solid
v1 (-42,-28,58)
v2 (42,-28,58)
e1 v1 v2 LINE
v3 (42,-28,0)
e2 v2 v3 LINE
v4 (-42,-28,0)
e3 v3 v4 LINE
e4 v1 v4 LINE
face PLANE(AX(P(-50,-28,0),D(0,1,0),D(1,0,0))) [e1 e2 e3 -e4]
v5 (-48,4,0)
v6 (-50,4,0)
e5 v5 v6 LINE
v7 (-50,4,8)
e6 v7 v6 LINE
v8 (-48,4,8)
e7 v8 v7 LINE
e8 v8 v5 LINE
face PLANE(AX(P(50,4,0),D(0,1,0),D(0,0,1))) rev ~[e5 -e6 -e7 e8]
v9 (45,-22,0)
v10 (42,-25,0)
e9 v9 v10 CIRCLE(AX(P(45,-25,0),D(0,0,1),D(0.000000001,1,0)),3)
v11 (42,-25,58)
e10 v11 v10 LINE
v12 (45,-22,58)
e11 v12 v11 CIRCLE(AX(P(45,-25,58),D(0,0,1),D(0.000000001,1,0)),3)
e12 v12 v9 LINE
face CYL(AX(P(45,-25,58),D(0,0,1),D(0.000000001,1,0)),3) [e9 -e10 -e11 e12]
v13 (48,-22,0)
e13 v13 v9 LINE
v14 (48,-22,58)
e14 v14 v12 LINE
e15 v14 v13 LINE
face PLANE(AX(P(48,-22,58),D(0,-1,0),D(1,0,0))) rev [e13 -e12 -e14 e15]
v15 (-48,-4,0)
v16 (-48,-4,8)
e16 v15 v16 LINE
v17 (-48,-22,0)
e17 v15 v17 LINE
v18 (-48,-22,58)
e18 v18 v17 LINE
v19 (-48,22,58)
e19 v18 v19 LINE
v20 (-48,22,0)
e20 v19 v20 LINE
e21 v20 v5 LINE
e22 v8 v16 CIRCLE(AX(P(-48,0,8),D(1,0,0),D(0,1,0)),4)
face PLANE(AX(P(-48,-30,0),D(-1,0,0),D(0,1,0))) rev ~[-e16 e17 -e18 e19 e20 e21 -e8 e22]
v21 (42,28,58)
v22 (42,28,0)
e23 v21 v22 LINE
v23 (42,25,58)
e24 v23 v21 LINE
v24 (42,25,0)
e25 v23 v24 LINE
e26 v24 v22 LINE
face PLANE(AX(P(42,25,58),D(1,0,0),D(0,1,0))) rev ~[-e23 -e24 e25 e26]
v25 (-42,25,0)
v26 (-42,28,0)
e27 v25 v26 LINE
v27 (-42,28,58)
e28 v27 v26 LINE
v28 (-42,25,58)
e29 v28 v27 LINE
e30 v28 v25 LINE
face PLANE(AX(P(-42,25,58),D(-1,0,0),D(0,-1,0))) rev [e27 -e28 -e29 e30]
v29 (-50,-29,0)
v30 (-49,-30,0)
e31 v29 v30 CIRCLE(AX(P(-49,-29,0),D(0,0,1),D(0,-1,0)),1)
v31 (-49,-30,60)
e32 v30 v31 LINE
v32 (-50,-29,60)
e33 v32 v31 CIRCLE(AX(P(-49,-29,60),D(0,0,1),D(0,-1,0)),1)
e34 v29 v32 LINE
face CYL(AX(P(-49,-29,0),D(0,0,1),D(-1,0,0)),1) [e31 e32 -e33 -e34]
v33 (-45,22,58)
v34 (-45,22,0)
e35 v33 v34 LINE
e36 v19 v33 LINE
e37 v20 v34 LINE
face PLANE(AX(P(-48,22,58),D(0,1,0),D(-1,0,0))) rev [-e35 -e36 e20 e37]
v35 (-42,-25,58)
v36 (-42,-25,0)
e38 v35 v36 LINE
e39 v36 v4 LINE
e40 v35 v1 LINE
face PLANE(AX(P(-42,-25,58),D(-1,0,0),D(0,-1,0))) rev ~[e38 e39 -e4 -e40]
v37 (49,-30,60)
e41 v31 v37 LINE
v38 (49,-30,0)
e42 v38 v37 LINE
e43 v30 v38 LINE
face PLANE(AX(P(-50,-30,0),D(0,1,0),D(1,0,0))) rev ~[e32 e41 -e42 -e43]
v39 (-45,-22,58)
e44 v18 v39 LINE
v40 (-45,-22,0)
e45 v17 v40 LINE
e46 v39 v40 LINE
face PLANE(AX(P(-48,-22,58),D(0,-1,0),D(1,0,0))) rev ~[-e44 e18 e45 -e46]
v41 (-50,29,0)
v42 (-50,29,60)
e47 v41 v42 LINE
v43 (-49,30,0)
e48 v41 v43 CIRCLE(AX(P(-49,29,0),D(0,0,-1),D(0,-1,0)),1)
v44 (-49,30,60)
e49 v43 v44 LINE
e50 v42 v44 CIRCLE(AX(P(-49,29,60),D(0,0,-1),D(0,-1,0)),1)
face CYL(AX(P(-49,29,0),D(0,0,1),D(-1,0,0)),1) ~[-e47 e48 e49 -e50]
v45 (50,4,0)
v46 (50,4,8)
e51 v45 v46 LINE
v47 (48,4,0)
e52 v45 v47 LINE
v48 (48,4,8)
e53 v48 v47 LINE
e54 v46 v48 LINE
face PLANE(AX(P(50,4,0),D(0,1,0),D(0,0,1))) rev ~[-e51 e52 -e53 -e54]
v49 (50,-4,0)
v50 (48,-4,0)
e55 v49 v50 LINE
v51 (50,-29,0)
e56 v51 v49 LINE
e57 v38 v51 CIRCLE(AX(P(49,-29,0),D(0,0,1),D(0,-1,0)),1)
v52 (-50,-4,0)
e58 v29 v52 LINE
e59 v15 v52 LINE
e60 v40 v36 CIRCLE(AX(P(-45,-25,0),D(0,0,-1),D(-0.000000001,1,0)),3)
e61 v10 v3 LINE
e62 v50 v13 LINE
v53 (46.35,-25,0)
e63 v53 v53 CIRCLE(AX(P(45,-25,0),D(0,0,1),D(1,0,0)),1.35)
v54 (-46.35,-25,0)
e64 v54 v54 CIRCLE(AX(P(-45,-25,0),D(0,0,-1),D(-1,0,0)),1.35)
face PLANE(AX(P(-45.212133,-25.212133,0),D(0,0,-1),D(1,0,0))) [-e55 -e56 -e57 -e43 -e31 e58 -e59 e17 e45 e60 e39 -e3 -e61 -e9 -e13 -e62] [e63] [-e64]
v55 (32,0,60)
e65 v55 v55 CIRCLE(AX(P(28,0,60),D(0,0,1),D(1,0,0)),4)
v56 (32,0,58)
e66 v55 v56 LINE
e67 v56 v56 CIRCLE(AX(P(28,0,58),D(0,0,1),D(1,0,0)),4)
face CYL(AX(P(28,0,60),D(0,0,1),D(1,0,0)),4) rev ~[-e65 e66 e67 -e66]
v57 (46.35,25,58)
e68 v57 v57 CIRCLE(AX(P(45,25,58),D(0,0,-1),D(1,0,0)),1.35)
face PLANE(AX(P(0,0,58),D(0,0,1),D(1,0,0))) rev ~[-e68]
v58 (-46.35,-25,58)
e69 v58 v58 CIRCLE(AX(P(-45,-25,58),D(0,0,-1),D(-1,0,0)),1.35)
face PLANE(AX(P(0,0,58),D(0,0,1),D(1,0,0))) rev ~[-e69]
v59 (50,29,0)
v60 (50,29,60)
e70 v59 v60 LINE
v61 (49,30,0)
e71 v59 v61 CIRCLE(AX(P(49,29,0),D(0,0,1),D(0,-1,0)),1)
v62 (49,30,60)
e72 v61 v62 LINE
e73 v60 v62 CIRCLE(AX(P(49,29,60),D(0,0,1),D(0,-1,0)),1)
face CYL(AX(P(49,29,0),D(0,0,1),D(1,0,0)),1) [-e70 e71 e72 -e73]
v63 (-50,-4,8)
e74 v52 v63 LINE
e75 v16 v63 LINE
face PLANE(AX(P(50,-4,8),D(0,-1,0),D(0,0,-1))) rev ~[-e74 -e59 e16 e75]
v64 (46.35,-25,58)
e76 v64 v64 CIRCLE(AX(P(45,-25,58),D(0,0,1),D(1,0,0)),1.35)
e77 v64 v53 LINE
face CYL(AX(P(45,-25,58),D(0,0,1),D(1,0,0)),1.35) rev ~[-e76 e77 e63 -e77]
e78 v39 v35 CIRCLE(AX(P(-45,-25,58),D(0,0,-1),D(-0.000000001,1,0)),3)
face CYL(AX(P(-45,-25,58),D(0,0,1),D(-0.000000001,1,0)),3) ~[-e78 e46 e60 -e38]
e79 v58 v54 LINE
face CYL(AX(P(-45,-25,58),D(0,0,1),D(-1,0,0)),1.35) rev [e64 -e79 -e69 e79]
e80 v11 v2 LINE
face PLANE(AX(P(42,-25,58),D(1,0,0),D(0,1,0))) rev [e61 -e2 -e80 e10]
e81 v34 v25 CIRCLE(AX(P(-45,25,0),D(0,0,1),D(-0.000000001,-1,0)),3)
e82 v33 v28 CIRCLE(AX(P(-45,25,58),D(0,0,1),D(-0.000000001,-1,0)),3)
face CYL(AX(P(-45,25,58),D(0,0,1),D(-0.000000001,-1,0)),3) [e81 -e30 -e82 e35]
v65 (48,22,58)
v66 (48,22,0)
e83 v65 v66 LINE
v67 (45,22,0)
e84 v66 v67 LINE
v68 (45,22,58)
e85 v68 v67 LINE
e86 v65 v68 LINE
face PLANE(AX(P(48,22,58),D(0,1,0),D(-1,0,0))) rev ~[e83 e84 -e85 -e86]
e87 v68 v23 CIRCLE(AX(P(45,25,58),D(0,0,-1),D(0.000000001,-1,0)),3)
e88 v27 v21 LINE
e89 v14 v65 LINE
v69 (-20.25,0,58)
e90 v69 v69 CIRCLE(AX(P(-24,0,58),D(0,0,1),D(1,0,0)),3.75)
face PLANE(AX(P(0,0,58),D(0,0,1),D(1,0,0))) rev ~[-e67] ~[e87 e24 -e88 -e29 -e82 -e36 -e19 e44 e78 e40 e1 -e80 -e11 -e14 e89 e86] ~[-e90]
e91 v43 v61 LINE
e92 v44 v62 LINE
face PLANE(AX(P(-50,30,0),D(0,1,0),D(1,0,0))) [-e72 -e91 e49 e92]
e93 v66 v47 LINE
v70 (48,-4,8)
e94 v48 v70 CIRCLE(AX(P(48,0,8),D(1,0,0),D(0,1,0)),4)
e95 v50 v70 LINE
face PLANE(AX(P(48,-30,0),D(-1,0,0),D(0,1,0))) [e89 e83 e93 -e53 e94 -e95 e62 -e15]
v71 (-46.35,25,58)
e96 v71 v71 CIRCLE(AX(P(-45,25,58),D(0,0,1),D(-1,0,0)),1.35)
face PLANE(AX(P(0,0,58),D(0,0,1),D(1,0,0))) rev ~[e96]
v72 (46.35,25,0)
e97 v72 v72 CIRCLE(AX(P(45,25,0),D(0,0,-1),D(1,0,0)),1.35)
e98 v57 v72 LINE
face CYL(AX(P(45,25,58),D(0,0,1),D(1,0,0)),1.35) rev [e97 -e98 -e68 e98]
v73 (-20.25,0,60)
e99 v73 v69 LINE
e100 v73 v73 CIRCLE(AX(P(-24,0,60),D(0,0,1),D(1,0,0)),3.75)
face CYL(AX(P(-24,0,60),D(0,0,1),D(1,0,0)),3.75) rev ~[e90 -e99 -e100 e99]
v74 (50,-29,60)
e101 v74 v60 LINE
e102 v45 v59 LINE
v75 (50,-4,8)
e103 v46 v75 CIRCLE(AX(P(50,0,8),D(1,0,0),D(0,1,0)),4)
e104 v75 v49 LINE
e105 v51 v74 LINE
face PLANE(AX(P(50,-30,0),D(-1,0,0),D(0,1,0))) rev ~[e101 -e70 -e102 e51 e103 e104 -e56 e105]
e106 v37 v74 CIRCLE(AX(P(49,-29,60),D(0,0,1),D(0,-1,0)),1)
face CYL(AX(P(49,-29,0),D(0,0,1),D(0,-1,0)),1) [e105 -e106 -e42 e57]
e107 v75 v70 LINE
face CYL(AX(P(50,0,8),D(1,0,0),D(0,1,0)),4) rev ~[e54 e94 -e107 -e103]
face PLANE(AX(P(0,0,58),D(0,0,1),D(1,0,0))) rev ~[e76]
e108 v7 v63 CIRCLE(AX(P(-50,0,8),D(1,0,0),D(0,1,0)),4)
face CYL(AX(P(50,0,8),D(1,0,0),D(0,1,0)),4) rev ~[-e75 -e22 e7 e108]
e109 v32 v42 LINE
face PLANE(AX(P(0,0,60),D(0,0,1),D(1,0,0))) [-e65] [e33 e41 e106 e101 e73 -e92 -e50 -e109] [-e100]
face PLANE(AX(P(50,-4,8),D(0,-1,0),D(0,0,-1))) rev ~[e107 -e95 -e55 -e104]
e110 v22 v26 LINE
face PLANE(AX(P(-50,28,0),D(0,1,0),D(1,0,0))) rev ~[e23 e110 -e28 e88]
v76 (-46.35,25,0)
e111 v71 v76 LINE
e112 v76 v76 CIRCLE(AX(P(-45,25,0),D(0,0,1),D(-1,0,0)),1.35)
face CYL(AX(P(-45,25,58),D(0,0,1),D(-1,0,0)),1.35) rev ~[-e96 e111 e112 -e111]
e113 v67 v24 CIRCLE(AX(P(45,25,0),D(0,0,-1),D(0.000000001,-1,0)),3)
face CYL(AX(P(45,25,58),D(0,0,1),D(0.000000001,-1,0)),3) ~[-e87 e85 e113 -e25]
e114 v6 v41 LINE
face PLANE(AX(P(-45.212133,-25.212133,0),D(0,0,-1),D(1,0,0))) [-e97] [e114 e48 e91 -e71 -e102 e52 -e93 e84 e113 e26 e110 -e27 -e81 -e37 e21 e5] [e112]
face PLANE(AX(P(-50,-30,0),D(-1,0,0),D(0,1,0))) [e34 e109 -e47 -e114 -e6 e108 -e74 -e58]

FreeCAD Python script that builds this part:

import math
import FreeCAD as App
import Part
import Sketcher

V = App.Vector
Q = App.Units.Quantity


def edges_at(feature, points):
    """Names of the edges that pass closest to the given points."""
    edges = feature.Shape.Edges
    near = lambda p: min(range(len(edges)), key=lambda i: edges[i].distToShape(Part.Vertex(*p))[0])
    return sorted({f"Edge{near(p) + 1}" for p in points})


def faces_at(feature, points):
    """Names of the faces that lie closest to the given points."""
    faces = feature.Shape.Faces
    near = lambda p: min(range(len(faces)), key=lambda i: faces[i].distToShape(Part.Vertex(*p))[0])
    return sorted({f"Face{near(p) + 1}" for p in points})


def add_polygon(sketch, points):
    """Adds a closed chain of lines whose ends are joined by coincident constraints."""
    first, n = sketch.GeometryCount, len(points)
    for a, b in zip(points, points[1:] + points[:1]):
        sketch.addGeometry(Part.LineSegment(App.Vector(*a, 0), App.Vector(*b, 0)), False)
    for i in range(n):
        sketch.addConstraint(Sketcher.Constraint("Coincident", first + i, 2, first + (i + 1) % n, 1))

doc = App.newDocument("Part")
body = doc.addObject("PartDesign::Body", "Body")

sketch1 = body.newObject("Sketcher::SketchObject", "Sketch")
sketch1.AttachmentSupport = (doc.getObject("XY_Plane"), [""])
sketch1.MapMode = "FlatFace"
add_polygon(sketch1, [(-50, 30), (-50, -30), (50, -30), (50, 30)])
sketch1.addConstraint(Sketcher.Constraint("Vertical", 0))
sketch1.addConstraint(Sketcher.Constraint("Horizontal", 1))
sketch1.addConstraint(Sketcher.Constraint("Vertical", 2))
sketch1.addConstraint(Sketcher.Constraint("Horizontal", 3))
sketch1.addConstraint(Sketcher.Constraint("Symmetric", 0, 2, 2, 2, -1, 1))
sketch1.addConstraint(Sketcher.Constraint("DistanceX", 1, 1, 1, 2, Q("100 mm")))
sketch1.addConstraint(Sketcher.Constraint("DistanceY", 0, 2, 0, 1, Q("60 mm")))
pad1 = body.newObject("PartDesign::Pad", "Pad")
pad1.Profile = sketch1
pad1.Length = 60
doc.recompute()

thickness = body.newObject("PartDesign::Thickness", "Thickness")
thickness.Base = (pad1, faces_at(pad1, [(0, 0, 0)]))
thickness.Value = 2
thickness.Reversed = True
thickness.Join = "Intersection"

sketch2 = body.newObject("Sketcher::SketchObject", "Sketch001")
sketch2.AttachmentSupport = (doc.getObject("XY_Plane"), [""])
sketch2.MapMode = "FlatFace"
sketch2.AttachmentOffset = App.Placement(V(0, 0, 60), App.Rotation())
sketch2.addGeometry(Part.Circle(V(-24, 0, 0), V(0, 0, 1), 3.8), False)
sketch2.addGeometry(Part.Circle(V(28, 0, 0), V(0, 0, 1), 4), False)
sketch2.addConstraint(Sketcher.Constraint("PointOnObject", 0, 3, -1))
sketch2.addConstraint(Sketcher.Constraint("PointOnObject", 1, 3, -1))
sketch2.addConstraint(Sketcher.Constraint("Diameter", 1, Q("8 mm")))
sketch2.addConstraint(Sketcher.Constraint("Diameter", 0, Q("7.5 mm")))
sketch2.addConstraint(Sketcher.Constraint("DistanceX", 0, 3, -1, 1, Q("24 mm")))
sketch2.addConstraint(Sketcher.Constraint("DistanceX", -1, 1, 1, 3, Q("28 mm")))
pocket1 = body.newObject("PartDesign::Pocket", "Pocket")
pocket1.Profile = sketch2
pocket1.Length = 60

sketch3 = body.newObject("Sketcher::SketchObject", "Sketch002")
sketch3.AttachmentSupport = (doc.getObject("XY_Plane"), [""])
sketch3.MapMode = "FlatFace"
sketch3.AttachmentOffset = App.Placement(V(0, 0, 58), App.Rotation())
sketch3.addGeometry(Part.LineSegment(V(42, 25, 0), V(42, 28, 0)), False)
sketch3.addGeometry(Part.LineSegment(V(42, 28, 0), V(48, 28, 0)), False)
sketch3.addGeometry(Part.LineSegment(V(48, 28, 0), V(48, 22, 0)), False)
sketch3.addGeometry(Part.LineSegment(V(48, 22, 0), V(45, 22, 0)), False)
sketch3.addGeometry(Part.ArcOfCircle(Part.Circle(V(45, 25, 0), V(0, 0, 1), 3), math.radians(180), math.radians(270)), False)
sketch3.addGeometry(Part.Circle(V(45, 25, 0), V(0, 0, 1), 1.4), False)
sketch3.addConstraint(Sketcher.Constraint("Coincident", 0, 2, 1, 1))
sketch3.addConstraint(Sketcher.Constraint("Coincident", 1, 2, 2, 1))
sketch3.addConstraint(Sketcher.Constraint("Coincident", 2, 2, 3, 1))
sketch3.addConstraint(Sketcher.Constraint("Tangent", 3, 2, 4, 2))
sketch3.addConstraint(Sketcher.Constraint("Tangent", 4, 1, 0, 1))
sketch3.addConstraint(Sketcher.Constraint("Vertical", 0))
sketch3.addConstraint(Sketcher.Constraint("Horizontal", 1))
sketch3.addConstraint(Sketcher.Constraint("Vertical", 2))
sketch3.addConstraint(Sketcher.Constraint("Horizontal", 3))
sketch3.addConstraint(Sketcher.Constraint("Coincident", 5, 3, 4, 3))
sketch3.addConstraint(Sketcher.Constraint("Equal", 3, 0))
sketch3.addConstraint(Sketcher.Constraint("Radius", 4, Q("3 mm")))
sketch3.addConstraint(Sketcher.Constraint("Diameter", 5, Q("2.7 mm")))
sketch3.addConstraint(Sketcher.Constraint("DistanceX", 1, 1, 1, 2, Q("6 mm")))
sketch3.addConstraint(Sketcher.Constraint("DistanceX", -1, 1, 4, 3, Q("45 mm")))
sketch3.addConstraint(Sketcher.Constraint("DistanceY", -1, 1, 4, 3, Q("25 mm")))
pad2 = body.newObject("PartDesign::Pad", "Pad001")
pad2.Profile = sketch3
pad2.Length = 58
pad2.Reversed = True
doc.recompute()

mirrored = body.newObject("PartDesign::Mirrored", "Mirrored")
mirrored.Originals = [pad2]
mirrored.MirrorPlane = (doc.getObject("YZ_Plane"), [""])
body.Tip = mirrored
doc.recompute()

mirrored2 = body.newObject("PartDesign::Mirrored", "Mirrored001")
mirrored2.Originals = [pad2]
mirrored2.MirrorPlane = (doc.getObject("XZ_Plane"), [""])
body.Tip = mirrored2

sketch4 = body.newObject("Sketcher::SketchObject", "Sketch003")
sketch4.AttachmentSupport = (doc.getObject("XY_Plane"), [""])
sketch4.MapMode = "FlatFace"
sketch4.AttachmentOffset = App.Placement(V(0, 0, 58), App.Rotation())
sketch4.addGeometry(Part.LineSegment(V(-42, -25, 0), V(-42, -28, 0)), False)
sketch4.addGeometry(Part.LineSegment(V(-42, -28, 0), V(-48, -28, 0)), False)
sketch4.addGeometry(Part.LineSegment(V(-48, -28, 0), V(-48, -22, 0)), False)
sketch4.addGeometry(Part.LineSegment(V(-48, -22, 0), V(-45, -22, 0)), False)
sketch4.addGeometry(Part.ArcOfCircle(Part.Circle(V(-45, -25, 0), V(0, 0, 1), 3), math.radians(0), math.radians(90)), False)
sketch4.addGeometry(Part.Circle(V(-45, -25, 0), V(0, 0, 1), 1.4), False)
sketch4.addConstraint(Sketcher.Constraint("Coincident", 0, 2, 1, 1))
sketch4.addConstraint(Sketcher.Constraint("Coincident", 1, 2, 2, 1))
sketch4.addConstraint(Sketcher.Constraint("Coincident", 2, 2, 3, 1))
sketch4.addConstraint(Sketcher.Constraint("Tangent", 3, 2, 4, 2))
sketch4.addConstraint(Sketcher.Constraint("Tangent", 4, 1, 0, 1))
sketch4.addConstraint(Sketcher.Constraint("Vertical", 0))
sketch4.addConstraint(Sketcher.Constraint("Horizontal", 1))
sketch4.addConstraint(Sketcher.Constraint("Vertical", 2))
sketch4.addConstraint(Sketcher.Constraint("Horizontal", 3))
sketch4.addConstraint(Sketcher.Constraint("Coincident", 5, 3, 4, 3))
sketch4.addConstraint(Sketcher.Constraint("Equal", 3, 0))
sketch4.addConstraint(Sketcher.Constraint("Radius", 4, Q("3 mm")))
sketch4.addConstraint(Sketcher.Constraint("Diameter", 5, Q("2.7 mm")))
sketch4.addConstraint(Sketcher.Constraint("DistanceX", 1, 2, 1, 1, Q("6 mm")))
sketch4.addConstraint(Sketcher.Constraint("DistanceX", 4, 3, -1, 1, Q("45 mm")))
sketch4.addConstraint(Sketcher.Constraint("DistanceY", 4, 3, -1, 1, Q("25 mm")))
pad3 = body.newObject("PartDesign::Pad", "Pad002")
pad3.Profile = sketch4
pad3.Length = 58
pad3.Reversed = True
doc.recompute()

fillet = body.newObject("PartDesign::Fillet", "Fillet")
fillet.Base = (pad3, edges_at(pad3, [
    (-50, 30, 30),
    (50, 30, 30),
    (50, -30, 30),
    (-50, -30, 30),
]))
fillet.Radius = 1

sketch5 = body.newObject("Sketcher::SketchObject", "Sketch004")
sketch5.AttachmentSupport = (doc.getObject("YZ_Plane"), [""])
sketch5.MapMode = "FlatFace"
sketch5.AttachmentOffset = App.Placement(V(0, 0, 50), App.Rotation())
sketch5.addGeometry(Part.LineSegment(V(-4, 8, 0), V(-4, 0, 0)), False)
sketch5.addGeometry(Part.LineSegment(V(-4, 0, 0), V(4, 0, 0)), False)
sketch5.addGeometry(Part.LineSegment(V(4, 0, 0), V(4, 8, 0)), False)
sketch5.addGeometry(Part.ArcOfCircle(Part.Circle(V(0, 8, 0), V(0, 0, 1), 4), math.radians(0), math.radians(180)), False)
sketch5.addConstraint(Sketcher.Constraint("Coincident", 0, 2, 1, 1))
sketch5.addConstraint(Sketcher.Constraint("Coincident", 1, 2, 2, 1))
sketch5.addConstraint(Sketcher.Constraint("Tangent", 2, 2, 3, 1))
sketch5.addConstraint(Sketcher.Constraint("Tangent", 3, 2, 0, 1))
sketch5.addConstraint(Sketcher.Constraint("Vertical", 0))
sketch5.addConstraint(Sketcher.Constraint("Horizontal", 1))
sketch5.addConstraint(Sketcher.Constraint("Vertical", 2))
sketch5.addConstraint(Sketcher.Constraint("Symmetric", 0, 2, 1, 2, -1, 1))
sketch5.addConstraint(Sketcher.Constraint("Equal", 1, 0))
sketch5.addConstraint(Sketcher.Constraint("Radius", 3, Q("4 mm")))
pocket2 = body.newObject("PartDesign::Pocket", "Pocket001")
pocket2.Profile = sketch5
pocket2.Type = "ThroughAll"

doc.recompute()
